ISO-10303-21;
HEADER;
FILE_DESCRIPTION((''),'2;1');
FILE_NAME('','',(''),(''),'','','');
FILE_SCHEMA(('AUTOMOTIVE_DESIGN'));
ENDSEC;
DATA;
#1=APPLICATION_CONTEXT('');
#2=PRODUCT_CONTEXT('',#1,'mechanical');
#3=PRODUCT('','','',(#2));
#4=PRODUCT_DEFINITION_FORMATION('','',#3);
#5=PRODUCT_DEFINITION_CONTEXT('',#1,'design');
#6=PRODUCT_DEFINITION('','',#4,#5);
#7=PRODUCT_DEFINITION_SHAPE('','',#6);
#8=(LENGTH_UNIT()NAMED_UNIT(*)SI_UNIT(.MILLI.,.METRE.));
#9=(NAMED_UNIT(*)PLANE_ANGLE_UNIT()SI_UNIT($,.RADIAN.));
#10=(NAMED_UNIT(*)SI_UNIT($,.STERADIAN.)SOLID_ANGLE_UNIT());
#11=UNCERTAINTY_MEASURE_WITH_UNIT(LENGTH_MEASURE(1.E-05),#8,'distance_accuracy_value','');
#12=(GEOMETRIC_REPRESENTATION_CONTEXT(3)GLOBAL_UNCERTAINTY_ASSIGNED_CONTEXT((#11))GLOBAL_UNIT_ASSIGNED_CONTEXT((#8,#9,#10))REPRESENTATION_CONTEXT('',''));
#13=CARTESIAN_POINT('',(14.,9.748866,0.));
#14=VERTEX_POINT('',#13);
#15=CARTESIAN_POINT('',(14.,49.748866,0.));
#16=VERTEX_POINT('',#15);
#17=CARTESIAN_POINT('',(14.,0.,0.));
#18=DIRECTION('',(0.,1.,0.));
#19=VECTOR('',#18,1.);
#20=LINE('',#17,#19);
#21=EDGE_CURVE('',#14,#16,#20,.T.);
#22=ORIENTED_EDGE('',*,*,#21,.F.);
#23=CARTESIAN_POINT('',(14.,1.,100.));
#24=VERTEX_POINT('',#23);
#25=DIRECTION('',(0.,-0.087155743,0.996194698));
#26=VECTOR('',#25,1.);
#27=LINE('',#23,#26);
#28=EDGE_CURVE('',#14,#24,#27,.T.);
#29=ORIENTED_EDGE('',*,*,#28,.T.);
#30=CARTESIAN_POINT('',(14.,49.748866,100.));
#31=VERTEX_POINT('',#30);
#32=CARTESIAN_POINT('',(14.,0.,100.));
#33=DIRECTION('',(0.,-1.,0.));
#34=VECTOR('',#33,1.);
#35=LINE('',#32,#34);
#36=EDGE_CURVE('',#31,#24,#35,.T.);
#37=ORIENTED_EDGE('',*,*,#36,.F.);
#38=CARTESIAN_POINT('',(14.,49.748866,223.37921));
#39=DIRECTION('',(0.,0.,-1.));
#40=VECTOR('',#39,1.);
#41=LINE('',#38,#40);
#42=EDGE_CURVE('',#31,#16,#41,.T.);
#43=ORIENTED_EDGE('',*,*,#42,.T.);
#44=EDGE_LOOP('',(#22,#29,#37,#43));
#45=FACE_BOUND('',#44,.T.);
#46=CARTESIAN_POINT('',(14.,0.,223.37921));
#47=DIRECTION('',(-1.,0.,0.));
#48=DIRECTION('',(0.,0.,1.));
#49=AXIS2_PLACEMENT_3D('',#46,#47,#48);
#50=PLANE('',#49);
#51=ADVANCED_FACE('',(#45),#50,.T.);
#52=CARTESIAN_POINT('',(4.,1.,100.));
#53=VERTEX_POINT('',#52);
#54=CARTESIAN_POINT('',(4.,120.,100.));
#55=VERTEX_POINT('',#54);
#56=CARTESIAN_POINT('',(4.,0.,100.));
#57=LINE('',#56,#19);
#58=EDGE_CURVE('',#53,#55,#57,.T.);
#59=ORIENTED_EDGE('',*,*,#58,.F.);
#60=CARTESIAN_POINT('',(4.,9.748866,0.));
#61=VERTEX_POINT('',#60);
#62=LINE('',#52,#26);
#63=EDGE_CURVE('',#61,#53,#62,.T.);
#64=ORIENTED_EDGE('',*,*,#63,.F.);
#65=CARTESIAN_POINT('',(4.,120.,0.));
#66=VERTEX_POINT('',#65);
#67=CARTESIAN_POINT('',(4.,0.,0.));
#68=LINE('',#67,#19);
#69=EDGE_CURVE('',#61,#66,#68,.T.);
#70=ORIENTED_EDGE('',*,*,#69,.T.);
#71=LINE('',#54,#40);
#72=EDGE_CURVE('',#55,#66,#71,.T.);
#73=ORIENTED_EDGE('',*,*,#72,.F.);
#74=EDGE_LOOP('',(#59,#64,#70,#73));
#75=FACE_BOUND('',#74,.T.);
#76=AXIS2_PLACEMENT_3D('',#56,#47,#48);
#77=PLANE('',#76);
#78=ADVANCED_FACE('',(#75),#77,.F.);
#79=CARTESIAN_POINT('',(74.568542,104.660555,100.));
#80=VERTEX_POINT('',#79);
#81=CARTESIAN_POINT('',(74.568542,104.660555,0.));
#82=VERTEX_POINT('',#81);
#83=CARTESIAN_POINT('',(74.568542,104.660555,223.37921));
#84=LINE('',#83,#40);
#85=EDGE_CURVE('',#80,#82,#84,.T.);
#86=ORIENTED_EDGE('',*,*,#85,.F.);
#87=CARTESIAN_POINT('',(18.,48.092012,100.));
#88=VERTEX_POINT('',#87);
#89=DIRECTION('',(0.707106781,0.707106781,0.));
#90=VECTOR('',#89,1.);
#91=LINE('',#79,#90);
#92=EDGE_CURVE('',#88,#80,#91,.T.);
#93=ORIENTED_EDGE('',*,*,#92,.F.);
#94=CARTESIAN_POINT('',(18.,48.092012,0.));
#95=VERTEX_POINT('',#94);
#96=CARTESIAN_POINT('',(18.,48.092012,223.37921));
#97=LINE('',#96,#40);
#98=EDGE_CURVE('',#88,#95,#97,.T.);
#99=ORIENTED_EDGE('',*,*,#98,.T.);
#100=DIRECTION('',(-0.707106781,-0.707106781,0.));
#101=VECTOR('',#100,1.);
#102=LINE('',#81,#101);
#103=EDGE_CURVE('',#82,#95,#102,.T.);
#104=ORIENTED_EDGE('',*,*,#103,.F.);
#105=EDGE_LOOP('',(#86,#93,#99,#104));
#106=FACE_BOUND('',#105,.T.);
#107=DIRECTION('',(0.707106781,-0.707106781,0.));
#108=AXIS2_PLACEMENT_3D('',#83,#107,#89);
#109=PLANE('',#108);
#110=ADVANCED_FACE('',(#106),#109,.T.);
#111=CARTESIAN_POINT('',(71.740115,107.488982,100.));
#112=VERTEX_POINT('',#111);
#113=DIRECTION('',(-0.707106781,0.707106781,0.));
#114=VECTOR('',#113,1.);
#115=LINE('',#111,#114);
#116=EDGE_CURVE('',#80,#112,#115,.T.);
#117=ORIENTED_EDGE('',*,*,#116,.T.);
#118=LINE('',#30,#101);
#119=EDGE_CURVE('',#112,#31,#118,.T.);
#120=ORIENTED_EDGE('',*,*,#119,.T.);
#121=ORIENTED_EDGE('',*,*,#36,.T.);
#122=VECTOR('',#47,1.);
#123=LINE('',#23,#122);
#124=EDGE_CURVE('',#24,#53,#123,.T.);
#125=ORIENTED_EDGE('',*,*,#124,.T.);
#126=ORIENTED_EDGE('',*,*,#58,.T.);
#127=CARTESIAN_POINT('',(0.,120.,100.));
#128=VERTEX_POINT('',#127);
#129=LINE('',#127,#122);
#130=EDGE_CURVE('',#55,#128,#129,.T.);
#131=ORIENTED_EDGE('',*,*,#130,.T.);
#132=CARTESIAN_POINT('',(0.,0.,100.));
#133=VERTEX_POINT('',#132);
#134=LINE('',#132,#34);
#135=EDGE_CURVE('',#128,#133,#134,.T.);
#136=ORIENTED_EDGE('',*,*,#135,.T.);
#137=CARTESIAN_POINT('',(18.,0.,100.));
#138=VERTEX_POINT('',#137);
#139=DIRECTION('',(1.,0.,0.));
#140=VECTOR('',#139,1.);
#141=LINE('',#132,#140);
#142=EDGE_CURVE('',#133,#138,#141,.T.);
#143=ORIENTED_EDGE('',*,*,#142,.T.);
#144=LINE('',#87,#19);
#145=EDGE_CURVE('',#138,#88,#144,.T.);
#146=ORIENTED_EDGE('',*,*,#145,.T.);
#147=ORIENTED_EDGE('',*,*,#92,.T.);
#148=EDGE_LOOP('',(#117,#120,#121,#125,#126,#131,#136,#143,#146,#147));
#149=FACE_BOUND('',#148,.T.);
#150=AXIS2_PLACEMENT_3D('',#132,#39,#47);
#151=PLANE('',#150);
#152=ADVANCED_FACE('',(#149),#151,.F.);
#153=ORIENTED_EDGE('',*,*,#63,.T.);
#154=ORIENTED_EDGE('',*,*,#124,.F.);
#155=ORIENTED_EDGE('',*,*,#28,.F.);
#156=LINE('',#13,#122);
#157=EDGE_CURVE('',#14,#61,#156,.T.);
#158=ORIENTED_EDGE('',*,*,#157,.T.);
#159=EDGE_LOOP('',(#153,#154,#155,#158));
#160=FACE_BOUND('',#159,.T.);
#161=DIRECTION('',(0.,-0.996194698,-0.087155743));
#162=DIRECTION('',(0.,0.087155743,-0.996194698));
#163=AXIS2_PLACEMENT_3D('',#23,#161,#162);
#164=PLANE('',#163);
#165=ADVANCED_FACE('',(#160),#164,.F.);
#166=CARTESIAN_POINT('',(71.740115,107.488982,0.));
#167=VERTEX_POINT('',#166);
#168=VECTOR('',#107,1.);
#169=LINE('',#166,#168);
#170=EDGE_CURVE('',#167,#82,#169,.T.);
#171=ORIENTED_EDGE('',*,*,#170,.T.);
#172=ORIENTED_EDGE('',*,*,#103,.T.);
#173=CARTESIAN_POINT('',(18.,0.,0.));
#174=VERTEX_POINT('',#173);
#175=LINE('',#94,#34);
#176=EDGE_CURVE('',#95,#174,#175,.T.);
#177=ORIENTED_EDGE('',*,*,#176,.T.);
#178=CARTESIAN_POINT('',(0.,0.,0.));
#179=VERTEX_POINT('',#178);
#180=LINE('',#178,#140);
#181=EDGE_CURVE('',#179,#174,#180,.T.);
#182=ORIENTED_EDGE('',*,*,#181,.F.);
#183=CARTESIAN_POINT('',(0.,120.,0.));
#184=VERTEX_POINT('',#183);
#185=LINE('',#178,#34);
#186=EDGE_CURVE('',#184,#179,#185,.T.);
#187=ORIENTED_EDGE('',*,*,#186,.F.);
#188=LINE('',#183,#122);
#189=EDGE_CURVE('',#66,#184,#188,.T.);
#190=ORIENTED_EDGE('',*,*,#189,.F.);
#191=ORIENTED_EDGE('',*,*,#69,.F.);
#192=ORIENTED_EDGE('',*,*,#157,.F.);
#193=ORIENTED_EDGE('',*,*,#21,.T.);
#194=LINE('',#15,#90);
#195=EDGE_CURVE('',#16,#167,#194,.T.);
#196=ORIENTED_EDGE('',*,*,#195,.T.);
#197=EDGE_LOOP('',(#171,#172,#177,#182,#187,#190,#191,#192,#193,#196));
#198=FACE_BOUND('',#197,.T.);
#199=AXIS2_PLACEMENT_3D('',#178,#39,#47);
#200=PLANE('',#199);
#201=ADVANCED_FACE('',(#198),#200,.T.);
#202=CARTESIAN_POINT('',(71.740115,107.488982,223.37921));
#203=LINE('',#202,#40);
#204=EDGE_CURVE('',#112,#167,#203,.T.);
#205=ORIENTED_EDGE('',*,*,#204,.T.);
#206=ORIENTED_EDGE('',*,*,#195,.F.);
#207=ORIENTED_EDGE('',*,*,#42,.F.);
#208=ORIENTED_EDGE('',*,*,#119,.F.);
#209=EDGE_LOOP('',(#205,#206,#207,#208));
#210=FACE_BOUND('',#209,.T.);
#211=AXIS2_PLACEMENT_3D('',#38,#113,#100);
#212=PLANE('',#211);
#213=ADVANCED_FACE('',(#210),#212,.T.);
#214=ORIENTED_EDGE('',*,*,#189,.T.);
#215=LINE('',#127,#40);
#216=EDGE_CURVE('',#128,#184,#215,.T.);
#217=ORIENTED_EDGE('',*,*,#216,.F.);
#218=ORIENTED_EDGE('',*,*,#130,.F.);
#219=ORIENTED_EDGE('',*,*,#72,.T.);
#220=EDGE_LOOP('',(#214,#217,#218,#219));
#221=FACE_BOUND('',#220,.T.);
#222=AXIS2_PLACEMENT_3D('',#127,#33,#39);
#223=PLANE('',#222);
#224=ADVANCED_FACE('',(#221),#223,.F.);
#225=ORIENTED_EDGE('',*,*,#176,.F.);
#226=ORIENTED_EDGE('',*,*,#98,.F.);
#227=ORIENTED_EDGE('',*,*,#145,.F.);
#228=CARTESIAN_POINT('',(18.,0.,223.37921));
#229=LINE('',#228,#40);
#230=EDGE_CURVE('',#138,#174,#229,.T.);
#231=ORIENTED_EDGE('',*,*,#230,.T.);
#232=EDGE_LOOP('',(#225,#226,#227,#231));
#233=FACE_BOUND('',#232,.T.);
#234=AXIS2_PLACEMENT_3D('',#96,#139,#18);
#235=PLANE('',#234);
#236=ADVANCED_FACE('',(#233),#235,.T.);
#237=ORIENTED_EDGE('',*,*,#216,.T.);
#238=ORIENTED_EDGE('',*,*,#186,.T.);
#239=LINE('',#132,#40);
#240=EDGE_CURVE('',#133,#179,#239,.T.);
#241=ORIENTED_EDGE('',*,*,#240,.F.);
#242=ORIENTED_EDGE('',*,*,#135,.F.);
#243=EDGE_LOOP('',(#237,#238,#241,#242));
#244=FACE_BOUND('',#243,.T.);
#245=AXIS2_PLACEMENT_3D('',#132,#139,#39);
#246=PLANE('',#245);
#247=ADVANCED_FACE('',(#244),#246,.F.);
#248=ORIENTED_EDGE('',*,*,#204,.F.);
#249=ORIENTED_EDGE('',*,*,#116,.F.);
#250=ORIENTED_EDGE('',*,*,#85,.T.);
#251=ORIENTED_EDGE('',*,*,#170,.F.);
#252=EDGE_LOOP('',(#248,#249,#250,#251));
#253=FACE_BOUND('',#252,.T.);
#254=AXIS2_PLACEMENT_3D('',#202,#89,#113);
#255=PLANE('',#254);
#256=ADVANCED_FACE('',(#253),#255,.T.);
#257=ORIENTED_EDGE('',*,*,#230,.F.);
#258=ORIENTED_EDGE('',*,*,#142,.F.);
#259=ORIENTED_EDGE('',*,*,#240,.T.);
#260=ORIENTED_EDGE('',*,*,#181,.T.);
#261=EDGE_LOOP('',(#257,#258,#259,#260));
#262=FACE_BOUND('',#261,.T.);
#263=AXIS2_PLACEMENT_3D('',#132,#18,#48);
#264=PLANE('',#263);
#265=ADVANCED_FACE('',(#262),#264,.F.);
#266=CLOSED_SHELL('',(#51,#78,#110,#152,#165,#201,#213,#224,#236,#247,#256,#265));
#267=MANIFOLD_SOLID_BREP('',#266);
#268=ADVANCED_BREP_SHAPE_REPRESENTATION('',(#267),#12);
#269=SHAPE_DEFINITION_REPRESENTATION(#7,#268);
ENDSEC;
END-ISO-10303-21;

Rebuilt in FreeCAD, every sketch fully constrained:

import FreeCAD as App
import Part
import Sketcher

V = App.Vector
Q = App.Units.Quantity

doc = App.newDocument("Part")
params = doc.addObject("Spreadsheet::Sheet", "Params")
for row, (alias, value) in enumerate([
    ("sketch1_width", "4 mm"),
    ("sketch1_height", "120 mm"),
    ("pad1_length", "100 mm"),
    ("sketch2_width", "1 mm"),
    ("sketch2_height", "100 mm"),
    ("pad2_length", "10 mm"),
    ("sketch3_width", "4 mm"),
    ("sketch3_length", "4 mm"),
    ("sketch3_length2", "80 mm"),
    ("pad3_length", "100 mm"),
], start=1):
    params.set(f"A{row}", alias)
    params.set(f"B{row}", "=" + value)
    params.setAlias(f"B{row}", alias)

body = doc.addObject("PartDesign::Body", "Body")

# Sketch on XY plane
sketch1 = body.newObject("Sketcher::SketchObject", "Sketch")
sketch1.AttachmentSupport = (doc.getObject("XY_Plane"), [""])
sketch1.MapMode = "FlatFace"
sketch1.addGeometry([
    Part.LineSegment(V(0, 120, 0), V(0, 0, 0)),
    Part.LineSegment(V(0, 0, 0), V(4, 0, 0)),
    Part.LineSegment(V(4, 0, 0), V(4, 120, 0)),
    Part.LineSegment(V(4, 120, 0), V(0, 120, 0)),
], False)
sketch1.addConstraint([
    Sketcher.Constraint("Coincident", 0, 2, 1, 1),
    Sketcher.Constraint("Coincident", 1, 2, 2, 1),
    Sketcher.Constraint("Coincident", 2, 2, 3, 1),
    Sketcher.Constraint("Coincident", 3, 2, 0, 1),
    Sketcher.Constraint("Vertical", 0),
    Sketcher.Constraint("Horizontal", 1),
    Sketcher.Constraint("Vertical", 2),
    Sketcher.Constraint("Horizontal", 3),
    Sketcher.Constraint("Coincident", 0, 2, -1, 1),
    Sketcher.Constraint("DistanceX", 1, 1, 1, 2, 4.0),
    Sketcher.Constraint("DistanceY", 0, 2, 0, 1, 120.0),
])
sketch1.setExpression("Constraints[9]", "Params.sketch1_width")
sketch1.setExpression("Constraints[10]", "Params.sketch1_height")
pad1 = body.newObject("PartDesign::Pad", "Pad")
pad1.Profile = sketch1
pad1.setExpression("Length", "Params.pad1_length")

# Sketch on YZ plane
sketch2 = body.newObject("Sketcher::SketchObject", "Sketch001")
sketch2.AttachmentSupport = (doc.getObject("YZ_Plane"), [""])
sketch2.MapMode = "FlatFace"
sketch2.AttachmentOffset = App.Placement(V(0, 0, 4), App.Rotation())
sketch2.addGeometry([
    Part.LineSegment(V(1, 100, 0), V(0, 100, 0)),
    Part.LineSegment(V(0, 100, 0), V(0, 0, 0)),
    Part.LineSegment(V(0, 0, 0), V(9.748866, 0, 0)),
    Part.LineSegment(V(9.748866, 0, 0), V(1, 100, 0)),
], False)
sketch2.addConstraint([
    Sketcher.Constraint("Coincident", 0, 2, 1, 1),
    Sketcher.Constraint("Coincident", 1, 2, 2, 1),
    Sketcher.Constraint("Coincident", 2, 2, 3, 1),
    Sketcher.Constraint("Coincident", 3, 2, 0, 1),
    Sketcher.Constraint("Horizontal", 0),
    Sketcher.Constraint("Vertical", 1),
    Sketcher.Constraint("Horizontal", 2),
    Sketcher.Constraint("Coincident", 1, 2, -1, 1),
    Sketcher.Constraint("DistanceX", 0, 2, 0, 1, 1.0),
    Sketcher.Constraint("DistanceY", 1, 2, 1, 1, 100.0),
    Sketcher.Constraint("Angle", 3, Q("95 deg")),
])
sketch2.setExpression("Constraints[8]", "Params.sketch2_width")
sketch2.setExpression("Constraints[9]", "Params.sketch2_height")
pad2 = body.newObject("PartDesign::Pad", "Pad001")
pad2.Profile = sketch2
pad2.setExpression("Length", "Params.pad2_length")

# Sketch on XY plane
sketch3 = body.newObject("Sketcher::SketchObject", "Sketch002")
sketch3.AttachmentSupport = (doc.getObject("XY_Plane"), [""])
sketch3.MapMode = "FlatFace"
sketch3.addGeometry([
    Part.LineSegment(V(14, 0, 0), V(14, 49.748866, 0)),  # 0
    Part.LineSegment(V(14, 49.748866, 0), V(71.740115, 107.488982, 0)),  # 1
    Part.LineSegment(V(71.740115, 107.488982, 0), V(74.568542, 104.660555, 0)),  # 2
    Part.LineSegment(V(74.568542, 104.660555, 0), V(18, 48.092012, 0)),  # 3
    Part.LineSegment(V(18, 48.092012, 0), V(18, 0, 0)),  # 4
    Part.LineSegment(V(18, 0, 0), V(14, 0, 0)),  # 5
], False)
sketch3.addConstraint([
    Sketcher.Constraint("Coincident", 0, 2, 1, 1),
    Sketcher.Constraint("Coincident", 1, 2, 2, 1),
    Sketcher.Constraint("Coincident", 2, 2, 3, 1),
    Sketcher.Constraint("Coincident", 3, 2, 4, 1),
    Sketcher.Constraint("Coincident", 4, 2, 5, 1),
    Sketcher.Constraint("Coincident", 5, 2, 0, 1),
    Sketcher.Constraint("Vertical", 0),
    Sketcher.Constraint("Vertical", 4),
    Sketcher.Constraint("Horizontal", 5),
    Sketcher.Constraint("PointOnObject", 4, 2, -1),
    Sketcher.Constraint("Perpendicular", 1, 2),
    Sketcher.Constraint("Perpendicular", 2, 3),
    Sketcher.Constraint("DistanceX", 5, 2, 5, 1, 4.0),
    Sketcher.Constraint("Angle", 1, Q("45 deg")),
    Sketcher.Constraint("Distance", 2, 4.0),
    Sketcher.Constraint("Distance", 3, 80.0),
    Sketcher.Constraint("DistanceX", -1, 1, 0, 2, 14.0),
    Sketcher.Constraint("DistanceY", 0, 1, 0, 2, 49.748866),
])
sketch3.setExpression("Constraints[12]", "Params.sketch3_width")
sketch3.setExpression("Constraints[14]", "Params.sketch3_length")
sketch3.setExpression("Constraints[15]", "Params.sketch3_length2")
pad3 = body.newObject("PartDesign::Pad", "Pad002")
pad3.Profile = sketch3
pad3.setExpression("Length", "Params.pad3_length")

doc.recompute()
